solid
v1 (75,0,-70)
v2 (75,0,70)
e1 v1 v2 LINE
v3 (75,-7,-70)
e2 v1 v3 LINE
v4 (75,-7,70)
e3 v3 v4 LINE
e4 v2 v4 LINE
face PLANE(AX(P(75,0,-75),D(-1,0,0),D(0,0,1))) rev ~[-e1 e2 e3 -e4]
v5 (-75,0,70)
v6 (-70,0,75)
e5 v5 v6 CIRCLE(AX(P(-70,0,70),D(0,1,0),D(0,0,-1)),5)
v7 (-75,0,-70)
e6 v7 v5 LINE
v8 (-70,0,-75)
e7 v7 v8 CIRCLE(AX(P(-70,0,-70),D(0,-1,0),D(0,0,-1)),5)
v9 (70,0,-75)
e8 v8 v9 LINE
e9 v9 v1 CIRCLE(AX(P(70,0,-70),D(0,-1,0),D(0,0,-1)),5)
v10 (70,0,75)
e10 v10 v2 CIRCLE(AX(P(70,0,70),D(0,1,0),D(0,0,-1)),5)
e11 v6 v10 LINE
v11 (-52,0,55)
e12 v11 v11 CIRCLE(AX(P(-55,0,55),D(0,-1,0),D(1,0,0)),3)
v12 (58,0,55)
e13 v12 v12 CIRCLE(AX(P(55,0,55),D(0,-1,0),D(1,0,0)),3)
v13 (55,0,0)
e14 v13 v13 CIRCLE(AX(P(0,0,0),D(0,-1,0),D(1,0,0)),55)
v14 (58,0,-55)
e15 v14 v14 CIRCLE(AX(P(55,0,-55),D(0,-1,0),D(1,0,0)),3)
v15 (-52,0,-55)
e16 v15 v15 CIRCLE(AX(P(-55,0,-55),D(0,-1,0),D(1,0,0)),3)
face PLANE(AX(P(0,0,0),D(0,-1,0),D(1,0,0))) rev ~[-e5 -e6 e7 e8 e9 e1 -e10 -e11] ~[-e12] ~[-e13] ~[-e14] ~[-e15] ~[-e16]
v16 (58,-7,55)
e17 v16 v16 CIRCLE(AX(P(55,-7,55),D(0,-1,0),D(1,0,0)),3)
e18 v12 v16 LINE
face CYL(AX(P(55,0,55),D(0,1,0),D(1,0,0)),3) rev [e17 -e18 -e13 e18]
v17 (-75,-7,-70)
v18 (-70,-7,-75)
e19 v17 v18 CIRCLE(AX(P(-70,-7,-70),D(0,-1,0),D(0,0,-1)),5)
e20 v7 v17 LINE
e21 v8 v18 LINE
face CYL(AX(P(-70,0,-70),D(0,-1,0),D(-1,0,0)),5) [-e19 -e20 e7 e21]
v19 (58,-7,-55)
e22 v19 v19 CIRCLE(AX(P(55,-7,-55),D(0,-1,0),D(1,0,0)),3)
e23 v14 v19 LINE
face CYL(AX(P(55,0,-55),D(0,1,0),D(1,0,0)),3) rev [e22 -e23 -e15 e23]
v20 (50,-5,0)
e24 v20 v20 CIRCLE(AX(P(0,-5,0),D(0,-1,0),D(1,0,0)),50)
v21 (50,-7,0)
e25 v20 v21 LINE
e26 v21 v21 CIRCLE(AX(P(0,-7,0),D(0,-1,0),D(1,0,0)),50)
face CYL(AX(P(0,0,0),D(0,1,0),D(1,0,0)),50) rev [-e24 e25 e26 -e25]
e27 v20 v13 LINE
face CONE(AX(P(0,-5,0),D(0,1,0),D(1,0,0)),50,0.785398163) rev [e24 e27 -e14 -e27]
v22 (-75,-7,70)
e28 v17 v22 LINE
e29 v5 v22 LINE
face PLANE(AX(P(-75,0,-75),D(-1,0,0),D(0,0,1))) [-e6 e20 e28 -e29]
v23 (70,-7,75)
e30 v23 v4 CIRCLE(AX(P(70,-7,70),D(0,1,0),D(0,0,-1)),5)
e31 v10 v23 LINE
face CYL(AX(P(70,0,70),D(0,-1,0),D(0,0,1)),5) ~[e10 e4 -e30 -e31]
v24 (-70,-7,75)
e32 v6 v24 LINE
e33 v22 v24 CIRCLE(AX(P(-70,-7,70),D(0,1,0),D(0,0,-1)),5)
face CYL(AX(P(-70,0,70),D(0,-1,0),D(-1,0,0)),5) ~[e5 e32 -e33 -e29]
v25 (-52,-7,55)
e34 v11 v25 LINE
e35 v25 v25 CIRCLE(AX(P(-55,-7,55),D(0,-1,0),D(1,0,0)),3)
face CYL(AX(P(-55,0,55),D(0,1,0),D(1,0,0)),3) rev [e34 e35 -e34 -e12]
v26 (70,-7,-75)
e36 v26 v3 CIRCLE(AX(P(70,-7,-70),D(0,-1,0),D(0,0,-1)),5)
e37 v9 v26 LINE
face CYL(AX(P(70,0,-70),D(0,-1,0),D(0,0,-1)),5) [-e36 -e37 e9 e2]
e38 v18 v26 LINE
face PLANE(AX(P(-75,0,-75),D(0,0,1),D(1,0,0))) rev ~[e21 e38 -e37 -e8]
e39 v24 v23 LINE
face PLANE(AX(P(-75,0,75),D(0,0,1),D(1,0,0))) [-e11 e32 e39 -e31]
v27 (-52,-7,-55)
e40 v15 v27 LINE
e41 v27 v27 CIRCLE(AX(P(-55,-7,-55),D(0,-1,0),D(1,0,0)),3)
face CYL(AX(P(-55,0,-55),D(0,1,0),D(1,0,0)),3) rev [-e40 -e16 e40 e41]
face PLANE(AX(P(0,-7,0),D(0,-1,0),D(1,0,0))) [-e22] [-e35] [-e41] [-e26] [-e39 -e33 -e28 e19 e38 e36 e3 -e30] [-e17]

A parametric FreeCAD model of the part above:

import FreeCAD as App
import Part
import Sketcher

V = App.Vector


def edges_at(feature, points):
    """Names of the edges that pass closest to the given points."""
    edges = feature.Shape.Edges
    near = lambda p: min(range(len(edges)), key=lambda i: edges[i].distToShape(Part.Vertex(*p))[0])
    return sorted({f"Edge{near(p) + 1}" for p in points})


def add_polygon(sketch, points):
    """Adds a closed chain of lines whose ends are joined by coincident constraints."""
    first, n = sketch.GeometryCount, len(points)
    for a, b in zip(points, points[1:] + points[:1]):
        sketch.addGeometry(Part.LineSegment(App.Vector(*a, 0), App.Vector(*b, 0)), False)
    for i in range(n):
        sketch.addConstraint(Sketcher.Constraint("Coincident", first + i, 2, first + (i + 1) % n, 1))

doc = App.newDocument("Part")
body = doc.addObject("PartDesign::Body", "Body")

# Sketch on XZ plane
sketch1 = body.newObject("Sketcher::SketchObject", "Sketch")
sketch1.AttachmentSupport = (doc.getObject("XZ_Plane"), [""])
sketch1.MapMode = "FlatFace"
add_polygon(sketch1, [(-75, 75), (-75, -75), (75, -75), (75, 75)])  # lines 0-3
sketch1.addGeometry(Part.Circle(V(-55, -55, 0), V(0, 0, 1), 3), False)  # 4
sketch1.addGeometry(Part.Circle(V(55, -55, 0), V(0, 0, 1), 3), False)  # 5
sketch1.addGeometry(Part.Circle(V(-55, 55, 0), V(0, 0, 1), 3), False)  # 6
sketch1.addGeometry(Part.Circle(V(0, 0, 0), V(0, 0, 1), 50), False)  # 7
sketch1.addGeometry(Part.Circle(V(55, 55, 0), V(0, 0, 1), 3), False)  # 8
sketch1.addConstraint(Sketcher.Constraint("Vertical", 0))
sketch1.addConstraint(Sketcher.Constraint("Horizontal", 1))
sketch1.addConstraint(Sketcher.Constraint("Vertical", 2))
sketch1.addConstraint(Sketcher.Constraint("Horizontal", 3))
sketch1.addConstraint(Sketcher.Constraint("Coincident", 7, 3, -1, 1))
sketch1.addConstraint(Sketcher.Constraint("Equal", 4, 5))
sketch1.addConstraint(Sketcher.Constraint("Equal", 5, 6))
sketch1.addConstraint(Sketcher.Constraint("Equal", 6, 8))
sketch1.addConstraint(Sketcher.Constraint("Symmetric", 5, 3, 6, 3, -1, 1))
sketch1.addConstraint(Sketcher.Constraint("Symmetric", 4, 3, 8, 3, -1, 1))
sketch1.addConstraint(Sketcher.Constraint("Symmetric", 0, 2, 2, 2, -1, 1))
sketch1.addConstraint(Sketcher.Constraint("Symmetric", 4, 3, 5, 3, -2))
sketch1.addConstraint(Sketcher.Constraint("Equal", 3, 0))
sketch1.addConstraint(Sketcher.Constraint("Diameter", 4, 6.0))
sketch1.addConstraint(Sketcher.Constraint("Diameter", 7, 100.0))
sketch1.addConstraint(Sketcher.Constraint("DistanceX", 1, 1, 1, 2, 150.0))
sketch1.addConstraint(Sketcher.Constraint("DistanceX", 4, 3, -1, 1, 55.0))
sketch1.addConstraint(Sketcher.Constraint("DistanceY", 4, 3, -1, 1, 55.0))
pad1 = body.newObject("PartDesign::Pad", "Pad")
pad1.Profile = sketch1
pad1.Length = 7
doc.recompute()

chamfer = body.newObject("PartDesign::Chamfer", "Chamfer")
chamfer.Base = (pad1, edges_at(pad1, [(-50, 0, 0)]))
chamfer.ChamferType = "Two distances"
chamfer.Size = 5
chamfer.Size2 = 5
doc.recompute()

fillet = body.newObject("PartDesign::Fillet", "Fillet")
fillet.Base = (chamfer, edges_at(chamfer, [
    (75, -3.5, 75),
    (-75, -3.5, 75),
    (-75, -3.5, -75),
    (75, -3.5, -75),
]))
fillet.Radius = 5

doc.recompute()
